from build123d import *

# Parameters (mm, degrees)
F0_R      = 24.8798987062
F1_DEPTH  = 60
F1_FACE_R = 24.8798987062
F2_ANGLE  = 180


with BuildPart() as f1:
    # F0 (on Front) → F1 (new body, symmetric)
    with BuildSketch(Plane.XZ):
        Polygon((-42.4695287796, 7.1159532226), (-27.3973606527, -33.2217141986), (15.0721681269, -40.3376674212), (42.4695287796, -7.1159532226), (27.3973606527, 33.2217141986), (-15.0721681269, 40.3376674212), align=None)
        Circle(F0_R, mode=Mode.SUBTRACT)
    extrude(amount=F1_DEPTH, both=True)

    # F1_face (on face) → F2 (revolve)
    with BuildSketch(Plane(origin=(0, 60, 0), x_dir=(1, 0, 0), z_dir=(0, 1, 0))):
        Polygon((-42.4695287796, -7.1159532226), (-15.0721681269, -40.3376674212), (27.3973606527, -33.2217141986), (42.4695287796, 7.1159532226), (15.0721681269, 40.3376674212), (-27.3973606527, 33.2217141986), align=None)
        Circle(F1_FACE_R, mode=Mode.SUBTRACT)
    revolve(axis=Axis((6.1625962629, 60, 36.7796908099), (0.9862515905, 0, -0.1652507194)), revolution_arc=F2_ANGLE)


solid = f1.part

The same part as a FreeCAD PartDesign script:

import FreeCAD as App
import Part
import Sketcher
from FreeCAD import Vector

doc = App.newDocument("Part")
body = doc.addObject("PartDesign::Body", "Body")

# Sketch on XZ plane
sketch1 = doc.addObject("Sketcher::SketchObject", "Sketch")
body.addObject(sketch1)
sketch1.AttachmentSupport = (doc.XZ_Plane, [""])
sketch1.MapMode = "FlatFace"
sketch1.addGeometry([
    Part.LineSegment(Vector(-42, 7, 0), Vector(-27, -33, 0)),  # 0
    Part.LineSegment(Vector(-27, -33, 0), Vector(15, -40, 0)),  # 1
    Part.LineSegment(Vector(15, -40, 0), Vector(42, -7, 0)),  # 2
    Part.LineSegment(Vector(42, -7, 0), Vector(27, 33, 0)),  # 3
    Part.LineSegment(Vector(27, 33, 0), Vector(-15, 40, 0)),  # 4
    Part.LineSegment(Vector(-15, 40, 0), Vector(-42, 7, 0)),  # 5
    Part.Circle(Vector(0, 0, 0), Vector(0, 0, 1), 25),  # 6
], False)
sketch1.addConstraint([
    Sketcher.Constraint("Coincident", 0, 2, 1, 1),
    Sketcher.Constraint("Coincident", 1, 2, 2, 1),
    Sketcher.Constraint("Coincident", 2, 2, 3, 1),
    Sketcher.Constraint("Coincident", 3, 2, 4, 1),
    Sketcher.Constraint("Coincident", 4, 2, 5, 1),
    Sketcher.Constraint("Coincident", 5, 2, 0, 1),
    Sketcher.Constraint("Coincident", 6, 3, -1, 1),
    Sketcher.Constraint("Symmetric", 0, 2, 3, 2, -1, 1),
    Sketcher.Constraint("Symmetric", 1, 2, 4, 2, -1, 1),
    Sketcher.Constraint("Symmetric", 2, 2, 5, 2, -1, 1),
    Sketcher.Constraint("Equal", 0, 1),
    Sketcher.Constraint("Equal", 1, 2),
    Sketcher.Constraint("Diameter", 6, 49.759797),
    Sketcher.Constraint("DistanceX", 0, 2, -1, 1, 27.397361),
    Sketcher.Constraint("DistanceX", -1, 1, 1, 2, 15.072168),
    Sketcher.Constraint("DistanceX", -1, 1, 2, 2, 42.469529),
    Sketcher.Constraint("DistanceY", 0, 2, 2, 2, 26.105761),
])
pad1 = doc.addObject("PartDesign::Pad", "Pad")
body.addObject(pad1)
pad1.Profile = sketch1
pad1.Length = 120
pad1.Midplane = True

# Sketch on XZ plane
sketch2 = doc.addObject("Sketcher::SketchObject", "Sketch001")
body.addObject(sketch2)
sketch2.AttachmentSupport = (doc.XZ_Plane, [""])
sketch2.MapMode = "FlatFace"
sketch2.AttachmentOffset = App.Placement(Vector(0, 0, -60), App.Rotation())
sketch2.addGeometry([
    Part.LineSegment(Vector(-42, 7, 0), Vector(-15, 40, 0)),  # 0
    Part.LineSegment(Vector(-15, 40, 0), Vector(27, 33, 0)),  # 1
    Part.LineSegment(Vector(27, 33, 0), Vector(42, -7, 0)),  # 2
    Part.LineSegment(Vector(42, -7, 0), Vector(15, -40, 0)),  # 3
    Part.LineSegment(Vector(15, -40, 0), Vector(-27, -33, 0)),  # 4
    Part.LineSegment(Vector(-27, -33, 0), Vector(-42, 7, 0)),  # 5
    Part.Circle(Vector(0, 0, 0), Vector(0, 0, 1), 25),  # 6
], False)
sketch2.addGeometry(Part.LineSegment(Vector(-36, 44, 0), Vector(49, 30, 0)), True)  # axis
sketch2.addConstraint([
    Sketcher.Constraint("Coincident", 0, 2, 1, 1),
    Sketcher.Constraint("Coincident", 1, 2, 2, 1),
    Sketcher.Constraint("Coincident", 2, 2, 3, 1),
    Sketcher.Constraint("Coincident", 3, 2, 4, 1),
    Sketcher.Constraint("Coincident", 4, 2, 5, 1),
    Sketcher.Constraint("Coincident", 5, 2, 0, 1),
    Sketcher.Constraint("Coincident", 6, 3, -1, 1),
    Sketcher.Constraint("Symmetric", 0, 2, 3, 2, -1, 1),
    Sketcher.Constraint("Symmetric", 1, 2, 4, 2, -1, 1),
    Sketcher.Constraint("Symmetric", 2, 2, 5, 2, -1, 1),
    Sketcher.Constraint("Parallel", 4, 7),
    Sketcher.Constraint("Equal", 0, 1),
    Sketcher.Constraint("Equal", 1, 2),
    Sketcher.Constraint("Diameter", 6, 49.759797),
    Sketcher.Constraint("DistanceX", 0, 2, -1, 1, 15.072168),
    Sketcher.Constraint("DistanceX", -1, 1, 1, 2, 27.397361),
    Sketcher.Constraint("DistanceX", -1, 1, 2, 2, 42.469529),
    Sketcher.Constraint("DistanceY", 2, 2, 0, 2, 47.453621),
    Sketcher.Constraint("DistanceY", 5, 2, 7, 1, 36.779691),
    Sketcher.Constraint("DistanceX", 7, 1, 4, 2, 8.909572),
    Sketcher.Constraint("DistanceY", 2, 2, 7, 2, 36.779691),
])
revolution = doc.addObject("PartDesign::Revolution", "Revolution")
body.addObject(revolution)
revolution.Profile = sketch2
revolution.ReferenceAxis = (sketch2, ["Axis0"])
revolution.Angle = 180

doc.recompute()
